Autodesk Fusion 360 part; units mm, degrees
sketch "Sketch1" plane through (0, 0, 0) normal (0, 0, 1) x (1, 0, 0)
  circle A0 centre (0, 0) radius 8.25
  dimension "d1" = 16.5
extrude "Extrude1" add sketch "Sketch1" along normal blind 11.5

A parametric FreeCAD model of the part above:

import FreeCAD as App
import Part
import Sketcher

doc = App.newDocument("Part")
body = doc.addObject("PartDesign::Body", "Body")

# Sketch on XY plane
sketch1 = body.newObject("Sketcher::SketchObject", "Sketch")
sketch1.AttachmentSupport = (doc.getObject("XY_Plane"), [""])
sketch1.MapMode = "FlatFace"
sketch1.addGeometry(Part.Circle(App.Vector(0, 0, 0), App.Vector(0, 0, 1), 8), False)
sketch1.addConstraint([
    Sketcher.Constraint("Coincident", 0, 3, -1, 1),
    Sketcher.Constraint("Diameter", 0, 16.5),
])
pad1 = body.newObject("PartDesign::Pad", "Pad")
pad1.Profile = sketch1
pad1.Length = 11.5

doc.recompute()
